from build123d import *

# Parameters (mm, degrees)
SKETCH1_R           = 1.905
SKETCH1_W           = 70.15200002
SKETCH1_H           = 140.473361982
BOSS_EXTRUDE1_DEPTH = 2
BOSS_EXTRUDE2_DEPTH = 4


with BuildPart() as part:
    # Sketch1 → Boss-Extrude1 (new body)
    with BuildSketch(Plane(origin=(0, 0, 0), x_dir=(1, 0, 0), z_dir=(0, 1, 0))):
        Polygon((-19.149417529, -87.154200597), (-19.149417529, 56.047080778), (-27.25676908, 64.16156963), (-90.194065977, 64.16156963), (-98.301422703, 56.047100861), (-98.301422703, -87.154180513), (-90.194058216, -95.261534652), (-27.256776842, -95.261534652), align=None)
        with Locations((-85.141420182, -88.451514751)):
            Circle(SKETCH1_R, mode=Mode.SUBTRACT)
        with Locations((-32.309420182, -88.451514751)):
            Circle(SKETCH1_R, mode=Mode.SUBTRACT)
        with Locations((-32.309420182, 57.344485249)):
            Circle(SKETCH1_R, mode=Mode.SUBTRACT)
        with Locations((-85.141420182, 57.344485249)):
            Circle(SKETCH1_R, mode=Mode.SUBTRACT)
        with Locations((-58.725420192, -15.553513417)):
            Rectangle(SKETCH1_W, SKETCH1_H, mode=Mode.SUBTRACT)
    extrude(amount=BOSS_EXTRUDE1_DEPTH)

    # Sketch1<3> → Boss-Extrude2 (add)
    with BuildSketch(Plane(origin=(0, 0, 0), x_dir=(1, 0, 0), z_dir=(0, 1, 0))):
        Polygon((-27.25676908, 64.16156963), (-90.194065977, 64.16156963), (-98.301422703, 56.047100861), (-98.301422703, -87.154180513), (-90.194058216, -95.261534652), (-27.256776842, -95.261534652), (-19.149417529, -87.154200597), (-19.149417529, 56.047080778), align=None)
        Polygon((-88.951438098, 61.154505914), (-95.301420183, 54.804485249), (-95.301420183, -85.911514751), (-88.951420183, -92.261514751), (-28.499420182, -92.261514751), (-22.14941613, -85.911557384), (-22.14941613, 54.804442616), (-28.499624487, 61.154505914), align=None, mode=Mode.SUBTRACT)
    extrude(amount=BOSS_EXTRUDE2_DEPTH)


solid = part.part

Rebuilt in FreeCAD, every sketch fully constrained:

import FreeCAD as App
import Part
import Sketcher
Q = App.Units.Quantity

doc = App.newDocument("Part")
params = doc.addObject("Spreadsheet::Sheet", "Params")
for row, (alias, value) in enumerate([
    ("sketch1_diameter", "0.15 in"),
    ("pad1_length", "2 mm"),
    ("sketch2_width", "2.38 in"),
    ("sketch2_height", "5.54 in"),
    ("pad2_length", "4 mm"),
], start=1):
    params.set(f"A{row}", alias)
    params.set(f"B{row}", "=" + value)
    params.setAlias(f"B{row}", alias)

body = doc.addObject("PartDesign::Body", "Body")

sketch1 = body.newObject("Sketcher::SketchObject", "Sketch")
sketch1.AttachmentSupport = (doc.getObject("XZ_Plane"), [""])
sketch1.MapMode = "FlatFace"
sketch1.addGeometry(Part.LineSegment(App.Vector(-19.1, 87.2, 0), App.Vector(-19.1, -56, 0)), False)
sketch1.addGeometry(Part.LineSegment(App.Vector(-19.1, -56, 0), App.Vector(-27.3, -64.2, 0)), False)
sketch1.addGeometry(Part.LineSegment(App.Vector(-27.3, -64.2, 0), App.Vector(-90.2, -64.2, 0)), False)
sketch1.addGeometry(Part.LineSegment(App.Vector(-90.2, -64.2, 0), App.Vector(-98.3, -56, 0)), False)
sketch1.addGeometry(Part.LineSegment(App.Vector(-98.3, -56, 0), App.Vector(-98.3, 87.2, 0)), False)
sketch1.addGeometry(Part.LineSegment(App.Vector(-98.3, 87.2, 0), App.Vector(-90.2, 95.3, 0)), False)
sketch1.addGeometry(Part.LineSegment(App.Vector(-90.2, 95.3, 0), App.Vector(-27.3, 95.3, 0)), False)
sketch1.addGeometry(Part.LineSegment(App.Vector(-27.3, 95.3, 0), App.Vector(-19.1, 87.2, 0)), False)
sketch1.addGeometry(Part.Circle(App.Vector(-85.1, 88.5, 0), App.Vector(0, 0, 1), 1.9), False)
sketch1.addGeometry(Part.Circle(App.Vector(-32.3, 88.5, 0), App.Vector(0, 0, 1), 1.9), False)
sketch1.addGeometry(Part.Circle(App.Vector(-85.1, -57.3, 0), App.Vector(0, 0, 1), 1.9), False)
sketch1.addGeometry(Part.LineSegment(App.Vector(-23.6, 85.8, 0), App.Vector(-93.8, 85.8, 0)), False)
sketch1.addGeometry(Part.LineSegment(App.Vector(-93.8, 85.8, 0), App.Vector(-93.8, -54.7, 0)), False)
sketch1.addGeometry(Part.LineSegment(App.Vector(-93.8, -54.7, 0), App.Vector(-23.6, -54.7, 0)), False)
sketch1.addGeometry(Part.LineSegment(App.Vector(-23.6, -54.7, 0), App.Vector(-23.6, 85.8, 0)), False)
sketch1.addGeometry(Part.Circle(App.Vector(-32.3, -57.3, 0), App.Vector(0, 0, 1), 1.9), False)
sketch1.addConstraint(Sketcher.Constraint("Coincident", 0, 2, 1, 1))
sketch1.addConstraint(Sketcher.Constraint("Coincident", 1, 2, 2, 1))
sketch1.addConstraint(Sketcher.Constraint("Coincident", 2, 2, 3, 1))
sketch1.addConstraint(Sketcher.Constraint("Coincident", 3, 2, 4, 1))
sketch1.addConstraint(Sketcher.Constraint("Coincident", 4, 2, 5, 1))
sketch1.addConstraint(Sketcher.Constraint("Coincident", 5, 2, 6, 1))
sketch1.addConstraint(Sketcher.Constraint("Coincident", 6, 2, 7, 1))
sketch1.addConstraint(Sketcher.Constraint("Coincident", 7, 2, 0, 1))
sketch1.addConstraint(Sketcher.Constraint("Coincident", 11, 2, 12, 1))
sketch1.addConstraint(Sketcher.Constraint("Coincident", 12, 2, 13, 1))
sketch1.addConstraint(Sketcher.Constraint("Coincident", 13, 2, 14, 1))
sketch1.addConstraint(Sketcher.Constraint("Coincident", 14, 2, 11, 1))
sketch1.addConstraint(Sketcher.Constraint("Vertical", 0))
sketch1.addConstraint(Sketcher.Constraint("Horizontal", 2))
sketch1.addConstraint(Sketcher.Constraint("Vertical", 4))
sketch1.addConstraint(Sketcher.Constraint("Horizontal", 6))
sketch1.addConstraint(Sketcher.Constraint("Horizontal", 11))
sketch1.addConstraint(Sketcher.Constraint("Vertical", 12))
sketch1.addConstraint(Sketcher.Constraint("Horizontal", 13))
sketch1.addConstraint(Sketcher.Constraint("Vertical", 14))
sketch1.addConstraint(Sketcher.Constraint("Equal", 8, 9))
sketch1.addConstraint(Sketcher.Constraint("Equal", 9, 10))
sketch1.addConstraint(Sketcher.Constraint("Equal", 10, 15))
sketch1.addConstraint(Sketcher.Constraint("Horizontal", 8, 3, 9, 3))
sketch1.addConstraint(Sketcher.Constraint("Horizontal", 10, 3, 15, 3))
sketch1.addConstraint(Sketcher.Constraint("Vertical", 8, 3, 10, 3))
sketch1.addConstraint(Sketcher.Constraint("Vertical", 9, 3, 15, 3))
sketch1.addConstraint(Sketcher.Constraint("Equal", 0, 4))
sketch1.addConstraint(Sketcher.Constraint("Diameter", 8, Q("0.15 in")))
sketch1.addConstraint(Sketcher.Constraint("DistanceX", 8, 3, 9, 3, Q("2.08 in")))
sketch1.addConstraint(Sketcher.Constraint("DistanceY", 10, 3, 8, 3, Q("5.74 in")))
sketch1.addConstraint(Sketcher.Constraint("DistanceX", 11, 2, 11, 1, 70.152))
sketch1.addConstraint(Sketcher.Constraint("DistanceX", 6, 1, 6, 2, 62.937281))
sketch1.addConstraint(Sketcher.Constraint("DistanceY", 0, 2, 0, 1, 143.201281))
sketch1.addConstraint(Sketcher.Constraint("DistanceY", 12, 2, 12, 1, 140.473362))
sketch1.addConstraint(Sketcher.Constraint("DistanceY", 3, 2, -1, 1, 56.047101))
sketch1.addConstraint(Sketcher.Constraint("DistanceY", -1, 1, 7, 2, 87.154201))
sketch1.addConstraint(Sketcher.Constraint("DistanceX", 11, 2, 8, 3, 8.66))
sketch1.addConstraint(Sketcher.Constraint("Distance", 7, 11.46552))
sketch1.addConstraint(Sketcher.Constraint("DistanceX", 2, 2, 2, 1, 62.937297))
sketch1.addConstraint(Sketcher.Constraint("DistanceX", 8, 3, -1, 1, 85.14142))
sketch1.addConstraint(Sketcher.Constraint("DistanceX", 1, 2, -1, 1, 27.256769))
sketch1.addConstraint(Sketcher.Constraint("DistanceY", 1, 2, -1, 1, 64.16157))
sketch1.addConstraint(Sketcher.Constraint("DistanceX", 5, 2, -1, 1, 90.194058))
sketch1.addConstraint(Sketcher.Constraint("DistanceX", 1, 2, 0, 2, 8.107352))
sketch1.addConstraint(Sketcher.Constraint("DistanceY", 8, 3, 5, 2, 6.81002))
sketch1.addConstraint(Sketcher.Constraint("DistanceY", 11, 2, 8, 3, 2.66132))
sketch1.addConstraint(Sketcher.Constraint("Distance", 3, 11.470564))
sketch1.setExpression("Constraints[28]", "Params.sketch1_diameter")
pad1 = body.newObject("PartDesign::Pad", "Pad")
pad1.Profile = sketch1
pad1.setExpression("Length", "Params.pad1_length")
pad1.Reversed = True

sketch2 = body.newObject("Sketcher::SketchObject", "Sketch001")
sketch2.AttachmentSupport = (doc.getObject("XZ_Plane"), [""])
sketch2.MapMode = "FlatFace"
sketch2.addGeometry(Part.LineSegment(App.Vector(-27, -64, 0), App.Vector(-90, -64, 0)), False)
sketch2.addGeometry(Part.LineSegment(App.Vector(-90, -64, 0), App.Vector(-98, -56, 0)), False)
sketch2.addGeometry(Part.LineSegment(App.Vector(-98, -56, 0), App.Vector(-98, 87, 0)), False)
sketch2.addGeometry(Part.LineSegment(App.Vector(-98, 87, 0), App.Vector(-90, 95, 0)), False)
sketch2.addGeometry(Part.LineSegment(App.Vector(-90, 95, 0), App.Vector(-27, 95, 0)), False)
sketch2.addGeometry(Part.LineSegment(App.Vector(-27, 95, 0), App.Vector(-19, 87, 0)), False)
sketch2.addGeometry(Part.LineSegment(App.Vector(-19, 87, 0), App.Vector(-19, -56, 0)), False)
sketch2.addGeometry(Part.LineSegment(App.Vector(-19, -56, 0), App.Vector(-27, -64, 0)), False)
sketch2.addGeometry(Part.LineSegment(App.Vector(-95, -55, 0), App.Vector(-89, -61, 0)), False)
sketch2.addGeometry(Part.LineSegment(App.Vector(-89, -61, 0), App.Vector(-28, -61, 0)), False)
sketch2.addGeometry(Part.LineSegment(App.Vector(-28, -61, 0), App.Vector(-22, -55, 0)), False)
sketch2.addGeometry(Part.LineSegment(App.Vector(-22, -55, 0), App.Vector(-22, 86, 0)), False)
sketch2.addGeometry(Part.LineSegment(App.Vector(-22, 86, 0), App.Vector(-28, 92, 0)), False)
sketch2.addGeometry(Part.LineSegment(App.Vector(-28, 92, 0), App.Vector(-89, 92, 0)), False)
sketch2.addGeometry(Part.LineSegment(App.Vector(-89, 92, 0), App.Vector(-95, 86, 0)), False)
sketch2.addGeometry(Part.LineSegment(App.Vector(-95, 86, 0), App.Vector(-95, -55, 0)), False)
sketch2.addConstraint(Sketcher.Constraint("Coincident", 0, 2, 1, 1))
sketch2.addConstraint(Sketcher.Constraint("Coincident", 1, 2, 2, 1))
sketch2.addConstraint(Sketcher.Constraint("Coincident", 2, 2, 3, 1))
sketch2.addConstraint(Sketcher.Constraint("Coincident", 3, 2, 4, 1))
sketch2.addConstraint(Sketcher.Constraint("Coincident", 4, 2, 5, 1))
sketch2.addConstraint(Sketcher.Constraint("Coincident", 5, 2, 6, 1))
sketch2.addConstraint(Sketcher.Constraint("Coincident", 6, 2, 7, 1))
sketch2.addConstraint(Sketcher.Constraint("Coincident", 7, 2, 0, 1))
sketch2.addConstraint(Sketcher.Constraint("Coincident", 8, 2, 9, 1))
sketch2.addConstraint(Sketcher.Constraint("Coincident", 9, 2, 10, 1))
sketch2.addConstraint(Sketcher.Constraint("Coincident", 10, 2, 11, 1))
sketch2.addConstraint(Sketcher.Constraint("Coincident", 11, 2, 12, 1))
sketch2.addConstraint(Sketcher.Constraint("Coincident", 12, 2, 13, 1))
sketch2.addConstraint(Sketcher.Constraint("Coincident", 13, 2, 14, 1))
sketch2.addConstraint(Sketcher.Constraint("Coincident", 14, 2, 15, 1))
sketch2.addConstraint(Sketcher.Constraint("Coincident", 15, 2, 8, 1))
sketch2.addConstraint(Sketcher.Constraint("Horizontal", 0))
sketch2.addConstraint(Sketcher.Constraint("Vertical", 2))
sketch2.addConstraint(Sketcher.Constraint("Horizontal", 4))
sketch2.addConstraint(Sketcher.Constraint("Vertical", 6))
sketch2.addConstraint(Sketcher.Constraint("Horizontal", 9))
sketch2.addConstraint(Sketcher.Constraint("Vertical", 11))
sketch2.addConstraint(Sketcher.Constraint("Horizontal", 13))
sketch2.addConstraint(Sketcher.Constraint("Vertical", 15))
sketch2.addConstraint(Sketcher.Constraint("Perpendicular", 5, 14))
sketch2.addConstraint(Sketcher.Constraint("Equal", 2, 6))
sketch2.addConstraint(Sketcher.Constraint("Equal", 11, 15))
sketch2.addConstraint(Sketcher.Constraint("Equal", 8, 14))
sketch2.addConstraint(Sketcher.Constraint("Angle", 14, Q("-135 deg")))
sketch2.addConstraint(Sketcher.Constraint("DistanceX", 13, 2, 13, 1, Q("2.38 in")))
sketch2.addConstraint(Sketcher.Constraint("DistanceY", 11, 1, 11, 2, Q("5.54 in")))
sketch2.addConstraint(Sketcher.Constraint("DistanceX", 12, 2, 11, 2, Q("0.2500002 in")))
sketch2.addConstraint(Sketcher.Constraint("DistanceX", 14, 2, 13, 2, Q("0.25 in")))
sketch2.addConstraint(Sketcher.Constraint("DistanceY", 0, 2, 3, 2, Q("6.2765002 in")))
sketch2.addConstraint(Sketcher.Constraint("DistanceX", 4, 1, 4, 2, 62.937281))
sketch2.addConstraint(Sketcher.Constraint("DistanceY", 2, 1, 2, 2, 143.201281))
sketch2.addConstraint(Sketcher.Constraint("DistanceY", 1, 2, -1, 1, 56.047101))
sketch2.addConstraint(Sketcher.Constraint("DistanceY", -1, 1, 5, 2, 87.154201))
sketch2.addConstraint(Sketcher.Constraint("DistanceX", 1, 2, 9, 2, 69.801798))
sketch2.addConstraint(Sketcher.Constraint("DistanceX", 10, 2, 6, 2, 2.999999))
sketch2.addConstraint(Sketcher.Constraint("Distance", 5, 11.46552))
sketch2.addConstraint(Sketcher.Constraint("Distance", 10, 8.980448))
sketch2.addConstraint(Sketcher.Constraint("Distance", 12, 8.980229))
sketch2.addConstraint(Sketcher.Constraint("DistanceX", 0, 2, 0, 1, 62.937297))
sketch2.addConstraint(Sketcher.Constraint("DistanceX", 9, 1, 9, 2, 60.451814))
sketch2.addConstraint(Sketcher.Constraint("DistanceX", 3, 2, -1, 1, 90.194058))
sketch2.addConstraint(Sketcher.Constraint("DistanceX", 7, 2, -1, 1, 27.256769))
sketch2.addConstraint(Sketcher.Constraint("DistanceY", 6, 2, 10, 2, 1.242638))
sketch2.setExpression("Constraints[29]", "Params.sketch2_width")
sketch2.setExpression("Constraints[30]", "Params.sketch2_height")
pad2 = body.newObject("PartDesign::Pad", "Pad001")
pad2.Profile = sketch2
pad2.setExpression("Length", "Params.pad2_length")
pad2.Reversed = True

doc.recompute()
